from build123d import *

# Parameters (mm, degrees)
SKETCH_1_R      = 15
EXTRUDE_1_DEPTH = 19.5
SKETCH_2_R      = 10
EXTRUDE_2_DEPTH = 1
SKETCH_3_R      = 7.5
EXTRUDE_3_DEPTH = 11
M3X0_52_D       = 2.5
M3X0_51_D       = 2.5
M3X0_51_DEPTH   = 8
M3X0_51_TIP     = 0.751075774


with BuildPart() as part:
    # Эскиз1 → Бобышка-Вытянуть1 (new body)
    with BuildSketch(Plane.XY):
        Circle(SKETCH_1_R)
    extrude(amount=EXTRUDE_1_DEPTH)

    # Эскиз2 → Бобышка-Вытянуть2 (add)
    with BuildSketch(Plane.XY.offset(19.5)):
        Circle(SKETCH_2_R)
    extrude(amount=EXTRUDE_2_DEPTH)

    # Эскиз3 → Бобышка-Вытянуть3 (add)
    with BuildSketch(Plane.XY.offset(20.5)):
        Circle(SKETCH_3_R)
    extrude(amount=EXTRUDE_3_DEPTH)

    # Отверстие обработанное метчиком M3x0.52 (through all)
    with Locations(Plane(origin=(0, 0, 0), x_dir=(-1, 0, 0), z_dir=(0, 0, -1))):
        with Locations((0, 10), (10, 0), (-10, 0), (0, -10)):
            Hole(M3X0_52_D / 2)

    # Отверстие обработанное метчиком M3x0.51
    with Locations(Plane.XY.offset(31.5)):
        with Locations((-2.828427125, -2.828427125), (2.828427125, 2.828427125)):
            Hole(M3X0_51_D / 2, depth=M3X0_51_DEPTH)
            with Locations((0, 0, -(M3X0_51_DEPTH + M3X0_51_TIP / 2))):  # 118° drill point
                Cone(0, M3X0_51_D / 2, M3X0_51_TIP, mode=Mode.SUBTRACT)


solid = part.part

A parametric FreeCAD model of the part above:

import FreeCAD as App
import Part
import Sketcher

V = App.Vector
Q = App.Units.Quantity

doc = App.newDocument("Part")
params = doc.addObject("Spreadsheet::Sheet", "Params")
for row, (alias, value) in enumerate([
    ("sketch1_diameter", "30 mm"),
    ("pad1_length", "19.5 mm"),
    ("sketch2_diameter", "20 mm"),
    ("pad2_length", "1 mm"),
    ("sketch3_diameter", "15 mm"),
    ("pad3_length", "11 mm"),
    ("sketch4_diameter", "2.5 mm"),
    ("hole_diameter", "2.5 mm"),
    ("sketch5_diameter", "2.5 mm"),
    ("hole2_diameter", "2.5 mm"),
    ("hole2_depth", "8 mm"),
], start=1):
    params.set(f"A{row}", alias)
    params.set(f"B{row}", "=" + value)
    params.setAlias(f"B{row}", alias)

body = doc.addObject("PartDesign::Body", "Body")

sketch1 = body.newObject("Sketcher::SketchObject", "Sketch")
sketch1.AttachmentSupport = (doc.getObject("XY_Plane"), [""])
sketch1.MapMode = "FlatFace"
sketch1.addGeometry(Part.Circle(V(0, 0, 0), V(0, 0, 1), 15), False)
sketch1.addConstraint(Sketcher.Constraint("Coincident", 0, 3, -1, 1))
sketch1.addConstraint(Sketcher.Constraint("Diameter", 0, Q("30 mm")))
sketch1.setExpression("Constraints[1]", "Params.sketch1_diameter")
pad1 = body.newObject("PartDesign::Pad", "Pad")
pad1.Profile = sketch1
pad1.setExpression("Length", "Params.pad1_length")

sketch2 = body.newObject("Sketcher::SketchObject", "Sketch001")
sketch2.AttachmentSupport = (doc.getObject("XY_Plane"), [""])
sketch2.MapMode = "FlatFace"
sketch2.AttachmentOffset = App.Placement(V(0, 0, 19.5), App.Rotation())
sketch2.addGeometry(Part.Circle(V(0, 0, 0), V(0, 0, 1), 10), False)
sketch2.addConstraint(Sketcher.Constraint("Coincident", 0, 3, -1, 1))
sketch2.addConstraint(Sketcher.Constraint("Diameter", 0, Q("20 mm")))
sketch2.setExpression("Constraints[1]", "Params.sketch2_diameter")
pad2 = body.newObject("PartDesign::Pad", "Pad001")
pad2.Profile = sketch2
pad2.setExpression("Length", "Params.pad2_length")

sketch3 = body.newObject("Sketcher::SketchObject", "Sketch002")
sketch3.AttachmentSupport = (doc.getObject("XY_Plane"), [""])
sketch3.MapMode = "FlatFace"
sketch3.AttachmentOffset = App.Placement(V(0, 0, 20.5), App.Rotation())
sketch3.addGeometry(Part.Circle(V(0, 0, 0), V(0, 0, 1), 7.5), False)
sketch3.addConstraint(Sketcher.Constraint("Coincident", 0, 3, -1, 1))
sketch3.addConstraint(Sketcher.Constraint("Diameter", 0, Q("15 mm")))
sketch3.setExpression("Constraints[1]", "Params.sketch3_diameter")
pad3 = body.newObject("PartDesign::Pad", "Pad002")
pad3.Profile = sketch3
pad3.setExpression("Length", "Params.pad3_length")

sketch4 = body.newObject("Sketcher::SketchObject", "Sketch003")
sketch4.AttachmentSupport = (doc.getObject("XY_Plane"), [""])
sketch4.MapMode = "FlatFace"
sketch4.addGeometry(Part.Circle(V(0, 10, 0), V(0, 0, 1), 1.25), False)
sketch4.addGeometry(Part.Circle(V(-10, 0, 0), V(0, 0, 1), 1.25), False)
sketch4.addGeometry(Part.Circle(V(10, 0, 0), V(0, 0, 1), 1.25), False)
sketch4.addGeometry(Part.Circle(V(0, -10, 0), V(0, 0, 1), 1.25), False)
sketch4.addConstraint(Sketcher.Constraint("Equal", 0, 1))
sketch4.addConstraint(Sketcher.Constraint("Equal", 1, 2))
sketch4.addConstraint(Sketcher.Constraint("Equal", 2, 3))
sketch4.addConstraint(Sketcher.Constraint("Symmetric", 1, 3, 2, 3, -1, 1))
sketch4.addConstraint(Sketcher.Constraint("Symmetric", 0, 3, 3, 3, -1, 1))
sketch4.addConstraint(Sketcher.Constraint("PointOnObject", 0, 3, -2))
sketch4.addConstraint(Sketcher.Constraint("PointOnObject", 1, 3, -1))
sketch4.addConstraint(Sketcher.Constraint("Diameter", 0, Q("2.5 mm")))
sketch4.addConstraint(Sketcher.Constraint("DistanceY", -1, 1, 0, 3, Q("10 mm")))
sketch4.addConstraint(Sketcher.Constraint("DistanceX", 1, 3, -1, 1, Q("10 mm")))
sketch4.setExpression("Constraints[7]", "Params.sketch4_diameter")
doc.recompute()
hole = body.newObject("PartDesign::Hole", "Hole")
hole.Profile = sketch4
hole.ThreadType = "None"
hole.setExpression("Diameter", "Params.hole_diameter")
hole.DepthType = "ThroughAll"
hole.Reversed = True

sketch5 = body.newObject("Sketcher::SketchObject", "Sketch004")
sketch5.AttachmentSupport = (doc.getObject("XY_Plane"), [""])
sketch5.MapMode = "FlatFace"
sketch5.AttachmentOffset = App.Placement(V(0, 0, 31.5), App.Rotation())
sketch5.addGeometry(Part.Circle(V(-2.828427, -2.828427, 0), V(0, 0, 1), 1.25), False)
sketch5.addGeometry(Part.Circle(V(2.828427, 2.828427, 0), V(0, 0, 1), 1.25), False)
sketch5.addConstraint(Sketcher.Constraint("Equal", 0, 1))
sketch5.addConstraint(Sketcher.Constraint("Symmetric", 0, 3, 1, 3, -1, 1))
sketch5.addConstraint(Sketcher.Constraint("Diameter", 0, Q("2.5 mm")))
sketch5.addConstraint(Sketcher.Constraint("DistanceX", 0, 3, -1, 1, Q("2.828427 mm")))
sketch5.addConstraint(Sketcher.Constraint("DistanceY", 0, 3, -1, 1, Q("2.828427 mm")))
sketch5.setExpression("Constraints[2]", "Params.sketch5_diameter")
doc.recompute()
hole2 = body.newObject("PartDesign::Hole", "Hole001")
hole2.Profile = sketch5
hole2.ThreadType = "None"
hole2.setExpression("Diameter", "Params.hole2_diameter")
hole2.DepthType = "Dimension"
hole2.setExpression("Depth", "Params.hole2_depth")
hole2.DrillPoint = "Angled"
hole2.DrillPointAngle = 118

doc.recompute()
